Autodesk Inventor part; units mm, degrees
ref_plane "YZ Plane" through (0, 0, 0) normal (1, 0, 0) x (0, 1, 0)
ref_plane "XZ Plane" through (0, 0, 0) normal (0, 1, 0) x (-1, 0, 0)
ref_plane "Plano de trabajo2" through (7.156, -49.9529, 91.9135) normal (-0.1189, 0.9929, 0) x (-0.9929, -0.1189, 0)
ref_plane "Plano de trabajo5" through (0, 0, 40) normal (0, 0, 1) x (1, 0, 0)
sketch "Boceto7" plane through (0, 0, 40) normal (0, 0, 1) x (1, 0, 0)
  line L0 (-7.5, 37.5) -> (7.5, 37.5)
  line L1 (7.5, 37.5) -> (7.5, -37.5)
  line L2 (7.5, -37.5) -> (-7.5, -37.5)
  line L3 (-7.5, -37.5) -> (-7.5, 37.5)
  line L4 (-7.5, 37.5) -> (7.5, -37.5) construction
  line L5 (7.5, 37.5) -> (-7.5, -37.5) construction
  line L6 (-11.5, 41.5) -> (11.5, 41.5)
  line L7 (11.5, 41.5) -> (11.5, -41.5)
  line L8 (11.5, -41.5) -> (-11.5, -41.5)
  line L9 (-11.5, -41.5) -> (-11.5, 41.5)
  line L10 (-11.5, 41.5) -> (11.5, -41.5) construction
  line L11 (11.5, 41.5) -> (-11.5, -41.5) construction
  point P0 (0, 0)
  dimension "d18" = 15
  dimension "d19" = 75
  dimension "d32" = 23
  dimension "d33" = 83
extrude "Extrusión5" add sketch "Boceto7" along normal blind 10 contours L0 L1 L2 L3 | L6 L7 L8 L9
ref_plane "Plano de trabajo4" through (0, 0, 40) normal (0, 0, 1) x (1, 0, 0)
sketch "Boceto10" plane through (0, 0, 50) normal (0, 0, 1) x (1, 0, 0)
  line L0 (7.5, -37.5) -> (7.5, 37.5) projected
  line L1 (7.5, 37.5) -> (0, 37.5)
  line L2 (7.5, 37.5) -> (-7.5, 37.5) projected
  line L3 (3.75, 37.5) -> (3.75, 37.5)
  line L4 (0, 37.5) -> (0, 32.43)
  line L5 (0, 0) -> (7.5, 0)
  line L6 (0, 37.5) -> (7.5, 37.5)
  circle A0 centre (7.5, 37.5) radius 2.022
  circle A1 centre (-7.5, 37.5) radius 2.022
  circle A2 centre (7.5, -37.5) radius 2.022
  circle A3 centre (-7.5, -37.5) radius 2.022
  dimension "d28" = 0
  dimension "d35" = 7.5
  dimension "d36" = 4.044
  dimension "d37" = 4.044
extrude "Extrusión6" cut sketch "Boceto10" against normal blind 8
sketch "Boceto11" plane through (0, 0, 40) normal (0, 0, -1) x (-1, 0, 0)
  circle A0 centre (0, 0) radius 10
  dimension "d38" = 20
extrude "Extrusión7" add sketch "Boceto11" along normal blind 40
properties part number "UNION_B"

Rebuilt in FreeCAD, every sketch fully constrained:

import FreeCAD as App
import Part
import Sketcher
from FreeCAD import Vector
Q = App.Units.Quantity


def add_polygon(sketch, points):
    """Adds a closed chain of lines whose ends are joined by coincident constraints."""
    first, n = sketch.GeometryCount, len(points)
    for a, b in zip(points, points[1:] + points[:1]):
        sketch.addGeometry(Part.LineSegment(App.Vector(*a, 0), App.Vector(*b, 0)), False)
    for i in range(n):
        sketch.addConstraint(Sketcher.Constraint("Coincident", first + i, 2, first + (i + 1) % n, 1))

doc = App.newDocument("Part")
body = doc.addObject("PartDesign::Body", "Body")

sketch1 = body.newObject("Sketcher::SketchObject", "Sketch")
sketch1.AttachmentSupport = (doc.getObject("XY_Plane"), [""])
sketch1.MapMode = "FlatFace"
sketch1.AttachmentOffset = App.Placement(Vector(0, 0, 40), App.Rotation())
add_polygon(sketch1, [(11.5, 41.5), (-11.5, 41.5), (-11.5, -41.5), (11.5, -41.5)])
sketch1.addConstraint([
    Sketcher.Constraint("Horizontal", 0),
    Sketcher.Constraint("Vertical", 1),
    Sketcher.Constraint("Horizontal", 2),
    Sketcher.Constraint("Vertical", 3),
    Sketcher.Constraint("Symmetric", 0, 2, 2, 2, -1, 1),
    Sketcher.Constraint("DistanceX", 0, 2, 0, 1, Q("23 mm")),
    Sketcher.Constraint("DistanceY", 1, 2, 1, 1, Q("83 mm")),
])
pad1 = body.newObject("PartDesign::Pad", "Pad")
pad1.Profile = sketch1
pad1.Length = 10

sketch2 = body.newObject("Sketcher::SketchObject", "Sketch001")
sketch2.AttachmentSupport = (doc.getObject("XY_Plane"), [""])
sketch2.MapMode = "FlatFace"
sketch2.AttachmentOffset = App.Placement(Vector(0, 0, 50), App.Rotation())
sketch2.addGeometry([
    Part.Circle(Vector(-7.5, 37.5, 0), Vector(0, 0, 1), 2.022),
    Part.Circle(Vector(7.5, 37.5, 0), Vector(0, 0, 1), 2.022),
    Part.Circle(Vector(7.5, -37.5, 0), Vector(0, 0, 1), 2.022),
    Part.Circle(Vector(-7.5, -37.5, 0), Vector(0, 0, 1), 2.022),
], False)
sketch2.addConstraint([
    Sketcher.Constraint("Equal", 0, 1),
    Sketcher.Constraint("Equal", 1, 2),
    Sketcher.Constraint("Equal", 2, 3),
    Sketcher.Constraint("Symmetric", 0, 3, 2, 3, -1, 1),
    Sketcher.Constraint("Symmetric", 1, 3, 3, 3, -1, 1),
    Sketcher.Constraint("Symmetric", 0, 3, 1, 3, -2),
    Sketcher.Constraint("Diameter", 0, Q("4.044 mm")),
    Sketcher.Constraint("DistanceX", 0, 3, -1, 1, Q("7.5 mm")),
    Sketcher.Constraint("DistanceY", 2, 3, 1, 3, Q("75 mm")),
])
pocket1 = body.newObject("PartDesign::Pocket", "Pocket")
pocket1.Profile = sketch2
pocket1.Length = 8

sketch3 = body.newObject("Sketcher::SketchObject", "Sketch002")
sketch3.AttachmentSupport = (doc.getObject("XY_Plane"), [""])
sketch3.MapMode = "FlatFace"
sketch3.AttachmentOffset = App.Placement(Vector(0, 0, 40), App.Rotation())
sketch3.addGeometry(Part.Circle(Vector(0, 0, 0), Vector(0, 0, 1), 10), False)
sketch3.addConstraint([
    Sketcher.Constraint("Coincident", 0, 3, -1, 1),
    Sketcher.Constraint("Diameter", 0, Q("20 mm")),
])
pad2 = body.newObject("PartDesign::Pad", "Pad001")
pad2.Profile = sketch3
pad2.Length = 40
pad2.Reversed = True

doc.recompute()
